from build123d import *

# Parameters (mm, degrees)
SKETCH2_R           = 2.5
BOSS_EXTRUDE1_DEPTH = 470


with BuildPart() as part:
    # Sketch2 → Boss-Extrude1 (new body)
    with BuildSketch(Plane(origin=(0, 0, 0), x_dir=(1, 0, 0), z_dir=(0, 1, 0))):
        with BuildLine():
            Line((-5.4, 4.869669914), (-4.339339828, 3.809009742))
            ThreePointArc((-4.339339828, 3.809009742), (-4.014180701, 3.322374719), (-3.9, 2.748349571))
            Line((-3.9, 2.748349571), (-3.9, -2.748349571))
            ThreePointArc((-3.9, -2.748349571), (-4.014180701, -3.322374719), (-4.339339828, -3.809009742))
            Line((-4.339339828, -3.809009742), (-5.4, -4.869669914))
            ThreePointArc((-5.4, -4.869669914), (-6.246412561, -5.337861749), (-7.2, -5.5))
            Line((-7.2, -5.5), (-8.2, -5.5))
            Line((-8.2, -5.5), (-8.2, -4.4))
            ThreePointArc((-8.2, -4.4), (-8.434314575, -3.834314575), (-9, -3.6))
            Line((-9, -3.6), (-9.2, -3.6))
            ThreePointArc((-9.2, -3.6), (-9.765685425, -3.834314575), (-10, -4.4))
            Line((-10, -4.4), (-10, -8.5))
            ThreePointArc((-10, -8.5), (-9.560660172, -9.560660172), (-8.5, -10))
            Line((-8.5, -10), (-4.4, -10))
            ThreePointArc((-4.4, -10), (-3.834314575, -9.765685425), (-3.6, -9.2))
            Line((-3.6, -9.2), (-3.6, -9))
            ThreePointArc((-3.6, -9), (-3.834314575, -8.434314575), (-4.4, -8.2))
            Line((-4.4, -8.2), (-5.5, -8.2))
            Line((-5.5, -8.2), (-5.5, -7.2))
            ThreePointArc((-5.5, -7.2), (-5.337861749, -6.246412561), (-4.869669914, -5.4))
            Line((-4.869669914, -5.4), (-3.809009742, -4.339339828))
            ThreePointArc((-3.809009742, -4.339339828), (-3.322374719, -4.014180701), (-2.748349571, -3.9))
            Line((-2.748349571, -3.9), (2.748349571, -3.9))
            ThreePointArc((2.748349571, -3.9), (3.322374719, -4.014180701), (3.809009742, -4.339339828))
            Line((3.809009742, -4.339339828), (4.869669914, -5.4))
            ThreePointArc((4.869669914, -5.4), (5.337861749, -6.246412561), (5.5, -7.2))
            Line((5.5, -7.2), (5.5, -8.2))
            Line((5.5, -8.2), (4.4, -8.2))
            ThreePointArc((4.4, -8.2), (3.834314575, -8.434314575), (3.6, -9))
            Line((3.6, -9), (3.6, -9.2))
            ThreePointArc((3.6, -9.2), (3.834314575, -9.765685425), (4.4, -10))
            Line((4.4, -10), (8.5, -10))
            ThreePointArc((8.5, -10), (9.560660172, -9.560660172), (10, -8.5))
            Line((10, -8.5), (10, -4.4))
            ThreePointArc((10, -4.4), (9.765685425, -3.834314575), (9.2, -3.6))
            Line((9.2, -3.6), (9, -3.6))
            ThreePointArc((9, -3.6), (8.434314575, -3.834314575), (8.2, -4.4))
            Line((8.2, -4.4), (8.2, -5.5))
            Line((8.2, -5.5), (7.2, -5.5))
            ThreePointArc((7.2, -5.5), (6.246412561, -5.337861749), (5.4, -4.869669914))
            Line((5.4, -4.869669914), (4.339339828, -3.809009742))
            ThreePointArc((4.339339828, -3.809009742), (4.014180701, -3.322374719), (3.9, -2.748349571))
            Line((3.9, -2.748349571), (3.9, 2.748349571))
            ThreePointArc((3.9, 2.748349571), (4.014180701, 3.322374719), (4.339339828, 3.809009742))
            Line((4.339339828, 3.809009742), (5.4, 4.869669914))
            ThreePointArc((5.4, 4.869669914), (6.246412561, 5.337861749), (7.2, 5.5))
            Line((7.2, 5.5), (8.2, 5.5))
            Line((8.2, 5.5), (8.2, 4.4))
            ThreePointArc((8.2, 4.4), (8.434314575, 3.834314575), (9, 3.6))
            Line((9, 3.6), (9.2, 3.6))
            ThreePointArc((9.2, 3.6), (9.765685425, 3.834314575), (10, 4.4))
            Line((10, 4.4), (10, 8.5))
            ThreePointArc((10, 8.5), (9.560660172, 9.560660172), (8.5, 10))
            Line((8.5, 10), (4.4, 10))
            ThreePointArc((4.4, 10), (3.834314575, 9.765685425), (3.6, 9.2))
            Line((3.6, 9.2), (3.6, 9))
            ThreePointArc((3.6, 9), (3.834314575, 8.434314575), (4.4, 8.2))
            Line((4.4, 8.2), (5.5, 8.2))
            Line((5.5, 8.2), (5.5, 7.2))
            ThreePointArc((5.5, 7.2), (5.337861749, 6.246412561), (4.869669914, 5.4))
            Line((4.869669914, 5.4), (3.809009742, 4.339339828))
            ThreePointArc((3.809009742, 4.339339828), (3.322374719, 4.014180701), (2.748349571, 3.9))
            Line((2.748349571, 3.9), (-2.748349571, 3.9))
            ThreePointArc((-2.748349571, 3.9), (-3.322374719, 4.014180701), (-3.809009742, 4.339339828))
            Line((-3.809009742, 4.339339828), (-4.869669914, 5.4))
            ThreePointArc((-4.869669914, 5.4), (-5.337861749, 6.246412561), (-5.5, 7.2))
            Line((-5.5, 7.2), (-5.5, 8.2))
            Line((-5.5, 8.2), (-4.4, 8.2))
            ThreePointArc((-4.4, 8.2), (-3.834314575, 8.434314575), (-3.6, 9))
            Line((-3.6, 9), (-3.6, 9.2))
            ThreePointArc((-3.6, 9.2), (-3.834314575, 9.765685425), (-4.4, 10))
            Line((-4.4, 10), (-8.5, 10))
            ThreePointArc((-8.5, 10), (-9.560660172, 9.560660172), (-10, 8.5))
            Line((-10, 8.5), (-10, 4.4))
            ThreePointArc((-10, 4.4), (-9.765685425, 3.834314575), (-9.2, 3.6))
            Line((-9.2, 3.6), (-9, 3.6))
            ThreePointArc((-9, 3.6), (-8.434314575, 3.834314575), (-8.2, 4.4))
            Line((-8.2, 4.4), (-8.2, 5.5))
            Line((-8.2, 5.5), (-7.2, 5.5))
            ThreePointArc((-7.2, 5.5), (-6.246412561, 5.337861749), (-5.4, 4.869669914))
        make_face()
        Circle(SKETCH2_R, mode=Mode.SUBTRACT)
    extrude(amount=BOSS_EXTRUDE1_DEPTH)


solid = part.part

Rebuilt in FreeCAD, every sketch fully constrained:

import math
import FreeCAD as App
import Part
import Sketcher

doc = App.newDocument("Part")
body = doc.addObject("PartDesign::Body", "Body")

# Sketch on XZ plane
sketch1 = body.newObject("Sketcher::SketchObject", "Sketch")
sketch1.AttachmentSupport = (doc.getObject("XZ_Plane"), [""])
sketch1.MapMode = "FlatFace"
sketch1.addGeometry([
    Part.LineSegment(App.Vector(-5.4, -4.87, 0), App.Vector(-4.34, -3.81, 0)),  # 0
    Part.ArcOfCircle(Part.Circle(App.Vector(-5.4, -2.75, 0), App.Vector(0, 0, 1), 1.5), math.radians(-45), math.radians(0)),  # 1
    Part.LineSegment(App.Vector(-3.9, -2.75, 0), App.Vector(-3.9, 2.75, 0)),  # 2
    Part.ArcOfCircle(Part.Circle(App.Vector(-5.4, 2.75, 0), App.Vector(0, 0, 1), 1.5), math.radians(0), math.radians(45)),  # 3
    Part.LineSegment(App.Vector(-4.34, 3.81, 0), App.Vector(-5.4, 4.87, 0)),  # 4
    Part.ArcOfCircle(Part.Circle(App.Vector(-7.2, 2.61, 0), App.Vector(0, 0, 1), 2.89), math.radians(51), math.radians(90)),  # 5
    Part.LineSegment(App.Vector(-7.2, 5.5, 0), App.Vector(-8.2, 5.5, 0)),  # 6
    Part.LineSegment(App.Vector(-8.2, 5.5, 0), App.Vector(-8.2, 4.4, 0)),  # 7
    Part.ArcOfCircle(Part.Circle(App.Vector(-9, 4.4, 0), App.Vector(0, 0, 1), 0.8), math.radians(-90), math.radians(0)),  # 8
    Part.LineSegment(App.Vector(-9, 3.6, 0), App.Vector(-9.2, 3.6, 0)),  # 9
    Part.ArcOfCircle(Part.Circle(App.Vector(-9.2, 4.4, 0), App.Vector(0, 0, 1), 0.8), math.radians(180), math.radians(270)),  # 10
    Part.LineSegment(App.Vector(-10, 4.4, 0), App.Vector(-10, 8.5, 0)),  # 11
    Part.ArcOfCircle(Part.Circle(App.Vector(-8.5, 8.5, 0), App.Vector(0, 0, 1), 1.5), math.radians(90), math.radians(180)),  # 12
    Part.LineSegment(App.Vector(-8.5, 10, 0), App.Vector(-4.4, 10, 0)),  # 13
    Part.ArcOfCircle(Part.Circle(App.Vector(-4.4, 9.2, 0), App.Vector(0, 0, 1), 0.8), math.radians(0), math.radians(90)),  # 14
    Part.LineSegment(App.Vector(-3.6, 9.2, 0), App.Vector(-3.6, 9, 0)),  # 15
    Part.ArcOfCircle(Part.Circle(App.Vector(-4.4, 9, 0), App.Vector(0, 0, 1), 0.8), math.radians(-90), math.radians(0)),  # 16
    Part.LineSegment(App.Vector(-4.4, 8.2, 0), App.Vector(-5.5, 8.2, 0)),  # 17
    Part.LineSegment(App.Vector(-5.5, 8.2, 0), App.Vector(-5.5, 7.2, 0)),  # 18
    Part.ArcOfCircle(Part.Circle(App.Vector(-2.61, 7.2, 0), App.Vector(0, 0, 1), 2.89), math.radians(180), math.radians(219)),  # 19
    Part.LineSegment(App.Vector(-4.87, 5.4, 0), App.Vector(-3.81, 4.34, 0)),  # 20
    Part.ArcOfCircle(Part.Circle(App.Vector(-2.75, 5.4, 0), App.Vector(0, 0, 1), 1.5), math.radians(-135), math.radians(-90)),  # 21
    Part.LineSegment(App.Vector(-2.75, 3.9, 0), App.Vector(2.75, 3.9, 0)),  # 22
    Part.ArcOfCircle(Part.Circle(App.Vector(2.75, 5.4, 0), App.Vector(0, 0, 1), 1.5), math.radians(-90), math.radians(-45)),  # 23
    Part.LineSegment(App.Vector(3.81, 4.34, 0), App.Vector(4.87, 5.4, 0)),  # 24
    Part.ArcOfCircle(Part.Circle(App.Vector(2.61, 7.2, 0), App.Vector(0, 0, 1), 2.89), math.radians(-39), math.radians(0)),  # 25
    Part.LineSegment(App.Vector(5.5, 7.2, 0), App.Vector(5.5, 8.2, 0)),  # 26
    Part.LineSegment(App.Vector(5.5, 8.2, 0), App.Vector(4.4, 8.2, 0)),  # 27
    Part.ArcOfCircle(Part.Circle(App.Vector(4.4, 9, 0), App.Vector(0, 0, 1), 0.8), math.radians(180), math.radians(270)),  # 28
    Part.LineSegment(App.Vector(3.6, 9, 0), App.Vector(3.6, 9.2, 0)),  # 29
    Part.ArcOfCircle(Part.Circle(App.Vector(4.4, 9.2, 0), App.Vector(0, 0, 1), 0.8), math.radians(90), math.radians(180)),  # 30
    Part.LineSegment(App.Vector(4.4, 10, 0), App.Vector(8.5, 10, 0)),  # 31
    Part.ArcOfCircle(Part.Circle(App.Vector(8.5, 8.5, 0), App.Vector(0, 0, 1), 1.5), math.radians(0), math.radians(90)),  # 32
    Part.LineSegment(App.Vector(10, 8.5, 0), App.Vector(10, 4.4, 0)),  # 33
    Part.ArcOfCircle(Part.Circle(App.Vector(9.2, 4.4, 0), App.Vector(0, 0, 1), 0.8), math.radians(-90), math.radians(0)),  # 34
    Part.LineSegment(App.Vector(9.2, 3.6, 0), App.Vector(9, 3.6, 0)),  # 35
    Part.ArcOfCircle(Part.Circle(App.Vector(9, 4.4, 0), App.Vector(0, 0, 1), 0.8), math.radians(180), math.radians(270)),  # 36
    Part.LineSegment(App.Vector(8.2, 4.4, 0), App.Vector(8.2, 5.5, 0)),  # 37
    Part.LineSegment(App.Vector(8.2, 5.5, 0), App.Vector(7.2, 5.5, 0)),  # 38
    Part.ArcOfCircle(Part.Circle(App.Vector(7.2, 2.61, 0), App.Vector(0, 0, 1), 2.89), math.radians(90), math.radians(129)),  # 39
    Part.LineSegment(App.Vector(5.4, 4.87, 0), App.Vector(4.34, 3.81, 0)),  # 40
    Part.ArcOfCircle(Part.Circle(App.Vector(5.4, 2.75, 0), App.Vector(0, 0, 1), 1.5), math.radians(135), math.radians(180)),  # 41
    Part.LineSegment(App.Vector(3.9, 2.75, 0), App.Vector(3.9, -2.75, 0)),  # 42
    Part.ArcOfCircle(Part.Circle(App.Vector(5.4, -2.75, 0), App.Vector(0, 0, 1), 1.5), math.radians(180), math.radians(225)),  # 43
    Part.LineSegment(App.Vector(4.34, -3.81, 0), App.Vector(5.4, -4.87, 0)),  # 44
    Part.ArcOfCircle(Part.Circle(App.Vector(7.2, -2.61, 0), App.Vector(0, 0, 1), 2.89), math.radians(-129), math.radians(-90)),  # 45
    Part.LineSegment(App.Vector(7.2, -5.5, 0), App.Vector(8.2, -5.5, 0)),  # 46
    Part.LineSegment(App.Vector(8.2, -5.5, 0), App.Vector(8.2, -4.4, 0)),  # 47
    Part.ArcOfCircle(Part.Circle(App.Vector(9, -4.4, 0), App.Vector(0, 0, 1), 0.8), math.radians(90), math.radians(180)),  # 48
    Part.LineSegment(App.Vector(9, -3.6, 0), App.Vector(9.2, -3.6, 0)),  # 49
    Part.ArcOfCircle(Part.Circle(App.Vector(9.2, -4.4, 0), App.Vector(0, 0, 1), 0.8), math.radians(0), math.radians(90)),  # 50
    Part.LineSegment(App.Vector(10, -4.4, 0), App.Vector(10, -8.5, 0)),  # 51
    Part.ArcOfCircle(Part.Circle(App.Vector(8.5, -8.5, 0), App.Vector(0, 0, 1), 1.5), math.radians(-90), math.radians(0)),  # 52
    Part.LineSegment(App.Vector(8.5, -10, 0), App.Vector(4.4, -10, 0)),  # 53
    Part.ArcOfCircle(Part.Circle(App.Vector(4.4, -9.2, 0), App.Vector(0, 0, 1), 0.8), math.radians(180), math.radians(270)),  # 54
    Part.LineSegment(App.Vector(3.6, -9.2, 0), App.Vector(3.6, -9, 0)),  # 55
    Part.ArcOfCircle(Part.Circle(App.Vector(4.4, -9, 0), App.Vector(0, 0, 1), 0.8), math.radians(90), math.radians(180)),  # 56
    Part.LineSegment(App.Vector(4.4, -8.2, 0), App.Vector(5.5, -8.2, 0)),  # 57
    Part.LineSegment(App.Vector(5.5, -8.2, 0), App.Vector(5.5, -7.2, 0)),  # 58
    Part.ArcOfCircle(Part.Circle(App.Vector(2.61, -7.2, 0), App.Vector(0, 0, 1), 2.89), math.radians(0), math.radians(39)),  # 59
    Part.LineSegment(App.Vector(4.87, -5.4, 0), App.Vector(3.81, -4.34, 0)),  # 60
    Part.ArcOfCircle(Part.Circle(App.Vector(2.75, -5.4, 0), App.Vector(0, 0, 1), 1.5), math.radians(45), math.radians(90)),  # 61
    Part.LineSegment(App.Vector(2.75, -3.9, 0), App.Vector(-2.75, -3.9, 0)),  # 62
    Part.ArcOfCircle(Part.Circle(App.Vector(-2.75, -5.4, 0), App.Vector(0, 0, 1), 1.5), math.radians(90), math.radians(135)),  # 63
    Part.LineSegment(App.Vector(-3.81, -4.34, 0), App.Vector(-4.87, -5.4, 0)),  # 64
    Part.ArcOfCircle(Part.Circle(App.Vector(-2.61, -7.2, 0), App.Vector(0, 0, 1), 2.89), math.radians(141), math.radians(180)),  # 65
    Part.LineSegment(App.Vector(-5.5, -7.2, 0), App.Vector(-5.5, -8.2, 0)),  # 66
    Part.LineSegment(App.Vector(-5.5, -8.2, 0), App.Vector(-4.4, -8.2, 0)),  # 67
    Part.ArcOfCircle(Part.Circle(App.Vector(-4.4, -9, 0), App.Vector(0, 0, 1), 0.8), math.radians(0), math.radians(90)),  # 68
    Part.LineSegment(App.Vector(-3.6, -9, 0), App.Vector(-3.6, -9.2, 0)),  # 69
    Part.ArcOfCircle(Part.Circle(App.Vector(-4.4, -9.2, 0), App.Vector(0, 0, 1), 0.8), math.radians(-90), math.radians(0)),  # 70
    Part.LineSegment(App.Vector(-4.4, -10, 0), App.Vector(-8.5, -10, 0)),  # 71
    Part.ArcOfCircle(Part.Circle(App.Vector(-8.5, -8.5, 0), App.Vector(0, 0, 1), 1.5), math.radians(180), math.radians(270)),  # 72
    Part.LineSegment(App.Vector(-10, -8.5, 0), App.Vector(-10, -4.4, 0)),  # 73
    Part.ArcOfCircle(Part.Circle(App.Vector(-9.2, -4.4, 0), App.Vector(0, 0, 1), 0.8), math.radians(90), math.radians(180)),  # 74
    Part.LineSegment(App.Vector(-9.2, -3.6, 0), App.Vector(-9, -3.6, 0)),  # 75
    Part.ArcOfCircle(Part.Circle(App.Vector(-9, -4.4, 0), App.Vector(0, 0, 1), 0.8), math.radians(0), math.radians(90)),  # 76
    Part.LineSegment(App.Vector(-8.2, -4.4, 0), App.Vector(-8.2, -5.5, 0)),  # 77
    Part.LineSegment(App.Vector(-8.2, -5.5, 0), App.Vector(-7.2, -5.5, 0)),  # 78
    Part.ArcOfCircle(Part.Circle(App.Vector(-7.2, -2.61, 0), App.Vector(0, 0, 1), 2.89), math.radians(-90), math.radians(-51)),  # 79
    Part.Circle(App.Vector(0, 0, 0), App.Vector(0, 0, 1), 2.5),  # 80
], False)
sketch1.addConstraint([
    Sketcher.Constraint("Tangent", 0, 2, 1, 1),
    Sketcher.Constraint("Tangent", 1, 2, 2, 1),
    Sketcher.Constraint("Tangent", 2, 2, 3, 1),
    Sketcher.Constraint("Tangent", 3, 2, 4, 1),
    Sketcher.Constraint("Coincident", 4, 2, 5, 1),
    Sketcher.Constraint("Tangent", 5, 2, 6, 1),
    Sketcher.Constraint("Coincident", 6, 2, 7, 1),
    Sketcher.Constraint("Tangent", 7, 2, 8, 2),
    Sketcher.Constraint("Tangent", 8, 1, 9, 1),
    Sketcher.Constraint("Tangent", 9, 2, 10, 2),
    Sketcher.Constraint("Tangent", 10, 1, 11, 1),
    Sketcher.Constraint("Tangent", 11, 2, 12, 2),
    Sketcher.Constraint("Tangent", 12, 1, 13, 1),
    Sketcher.Constraint("Tangent", 13, 2, 14, 2),
    Sketcher.Constraint("Tangent", 14, 1, 15, 1),
    Sketcher.Constraint("Tangent", 15, 2, 16, 2),
    Sketcher.Constraint("Tangent", 16, 1, 17, 1),
    Sketcher.Constraint("Coincident", 17, 2, 18, 1),
    Sketcher.Constraint("Tangent", 18, 2, 19, 1),
    Sketcher.Constraint("Coincident", 19, 2, 20, 1),
    Sketcher.Constraint("Tangent", 20, 2, 21, 1),
    Sketcher.Constraint("Tangent", 21, 2, 22, 1),
    Sketcher.Constraint("Tangent", 22, 2, 23, 1),
    Sketcher.Constraint("Tangent", 23, 2, 24, 1),
    Sketcher.Constraint("Coincident", 24, 2, 25, 1),
    Sketcher.Constraint("Tangent", 25, 2, 26, 1),
    Sketcher.Constraint("Coincident", 26, 2, 27, 1),
    Sketcher.Constraint("Tangent", 27, 2, 28, 2),
    Sketcher.Constraint("Tangent", 28, 1, 29, 1),
    Sketcher.Constraint("Tangent", 29, 2, 30, 2),
    Sketcher.Constraint("Tangent", 30, 1, 31, 1),
    Sketcher.Constraint("Tangent", 31, 2, 32, 2),
    Sketcher.Constraint("Tangent", 32, 1, 33, 1),
    Sketcher.Constraint("Tangent", 33, 2, 34, 2),
    Sketcher.Constraint("Tangent", 34, 1, 35, 1),
    Sketcher.Constraint("Tangent", 35, 2, 36, 2),
    Sketcher.Constraint("Tangent", 36, 1, 37, 1),
    Sketcher.Constraint("Coincident", 37, 2, 38, 1),
    Sketcher.Constraint("Tangent", 38, 2, 39, 1),
    Sketcher.Constraint("Coincident", 39, 2, 40, 1),
    Sketcher.Constraint("Tangent", 40, 2, 41, 1),
    Sketcher.Constraint("Tangent", 41, 2, 42, 1),
    Sketcher.Constraint("Tangent", 42, 2, 43, 1),
    Sketcher.Constraint("Tangent", 43, 2, 44, 1),
    Sketcher.Constraint("Coincident", 44, 2, 45, 1),
    Sketcher.Constraint("Tangent", 45, 2, 46, 1),
    Sketcher.Constraint("Coincident", 46, 2, 47, 1),
    Sketcher.Constraint("Tangent", 47, 2, 48, 2),
    Sketcher.Constraint("Tangent", 48, 1, 49, 1),
    Sketcher.Constraint("Tangent", 49, 2, 50, 2),
    Sketcher.Constraint("Tangent", 50, 1, 51, 1),
    Sketcher.Constraint("Tangent", 51, 2, 52, 2),
    Sketcher.Constraint("Tangent", 52, 1, 53, 1),
    Sketcher.Constraint("Tangent", 53, 2, 54, 2),
    Sketcher.Constraint("Tangent", 54, 1, 55, 1),
    Sketcher.Constraint("Tangent", 55, 2, 56, 2),
    Sketcher.Constraint("Tangent", 56, 1, 57, 1),
    Sketcher.Constraint("Coincident", 57, 2, 58, 1),
    Sketcher.Constraint("Tangent", 58, 2, 59, 1),
    Sketcher.Constraint("Coincident", 59, 2, 60, 1),
    Sketcher.Constraint("Tangent", 60, 2, 61, 1),
    Sketcher.Constraint("Tangent", 61, 2, 62, 1),
    Sketcher.Constraint("Tangent", 62, 2, 63, 1),
    Sketcher.Constraint("Tangent", 63, 2, 64, 1),
    Sketcher.Constraint("Coincident", 64, 2, 65, 1),
    Sketcher.Constraint("Tangent", 65, 2, 66, 1),
    Sketcher.Constraint("Coincident", 66, 2, 67, 1),
    Sketcher.Constraint("Tangent", 67, 2, 68, 2),
    Sketcher.Constraint("Tangent", 68, 1, 69, 1),
    Sketcher.Constraint("Tangent", 69, 2, 70, 2),
    Sketcher.Constraint("Tangent", 70, 1, 71, 1),
    Sketcher.Constraint("Tangent", 71, 2, 72, 2),
    Sketcher.Constraint("Tangent", 72, 1, 73, 1),
    Sketcher.Constraint("Tangent", 73, 2, 74, 2),
    Sketcher.Constraint("Tangent", 74, 1, 75, 1),
    Sketcher.Constraint("Tangent", 75, 2, 76, 2),
    Sketcher.Constraint("Tangent", 76, 1, 77, 1),
    Sketcher.Constraint("Coincident", 77, 2, 78, 1),
    Sketcher.Constraint("Tangent", 78, 2, 79, 1),
    Sketcher.Constraint("Coincident", 79, 2, 0, 1),
    Sketcher.Constraint("Vertical", 2),
    Sketcher.Constraint("Horizontal", 6),
    Sketcher.Constraint("Vertical", 7),
    Sketcher.Constraint("Horizontal", 9),
    Sketcher.Constraint("Vertical", 11),
    Sketcher.Constraint("Horizontal", 13),
    Sketcher.Constraint("Vertical", 15),
    Sketcher.Constraint("Horizontal", 17),
    Sketcher.Constraint("Vertical", 18),
    Sketcher.Constraint("Horizontal", 22),
    Sketcher.Constraint("Vertical", 26),
    Sketcher.Constraint("Horizontal", 27),
    Sketcher.Constraint("Vertical", 29),
    Sketcher.Constraint("Horizontal", 31),
    Sketcher.Constraint("Vertical", 33),
    Sketcher.Constraint("Horizontal", 35),
    Sketcher.Constraint("Vertical", 37),
    Sketcher.Constraint("Horizontal", 38),
    Sketcher.Constraint("Vertical", 42),
    Sketcher.Constraint("Horizontal", 46),
    Sketcher.Constraint("Vertical", 47),
    Sketcher.Constraint("Horizontal", 49),
    Sketcher.Constraint("Vertical", 51),
    Sketcher.Constraint("Horizontal", 53),
    Sketcher.Constraint("Vertical", 55),
    Sketcher.Constraint("Horizontal", 57),
    Sketcher.Constraint("Vertical", 58),
    Sketcher.Constraint("Horizontal", 62),
    Sketcher.Constraint("Vertical", 66),
    Sketcher.Constraint("Horizontal", 67),
    Sketcher.Constraint("Vertical", 69),
    Sketcher.Constraint("Horizontal", 71),
    Sketcher.Constraint("Vertical", 73),
    Sketcher.Constraint("Horizontal", 75),
    Sketcher.Constraint("Vertical", 77),
    Sketcher.Constraint("Horizontal", 78),
    Sketcher.Constraint("Coincident", 80, 3, -1, 1),
    Sketcher.Constraint("Equal", 1, 3),
    Sketcher.Constraint("Equal", 8, 10),
    Sketcher.Constraint("Equal", 3, 12),
    Sketcher.Constraint("Equal", 10, 14),
    Sketcher.Constraint("Equal", 14, 16),
    Sketcher.Constraint("Equal", 5, 19),
    Sketcher.Constraint("Equal", 12, 21),
    Sketcher.Constraint("Equal", 21, 23),
    Sketcher.Constraint("Equal", 19, 25),
    Sketcher.Constraint("Equal", 16, 28),
    Sketcher.Constraint("Equal", 28, 30),
    Sketcher.Constraint("Equal", 23, 32),
    Sketcher.Constraint("Equal", 30, 34),
    Sketcher.Constraint("Equal", 34, 36),
    Sketcher.Constraint("Equal", 25, 39),
    Sketcher.Constraint("Equal", 32, 41),
    Sketcher.Constraint("Equal", 41, 43),
    Sketcher.Constraint("Equal", 39, 45),
    Sketcher.Constraint("Equal", 36, 48),
    Sketcher.Constraint("Equal", 48, 50),
    Sketcher.Constraint("Equal", 43, 52),
    Sketcher.Constraint("Equal", 50, 54),
    Sketcher.Constraint("Equal", 54, 56),
    Sketcher.Constraint("Equal", 45, 59),
    Sketcher.Constraint("Equal", 52, 61),
    Sketcher.Constraint("Equal", 61, 63),
    Sketcher.Constraint("Equal", 59, 65),
    Sketcher.Constraint("Equal", 56, 68),
    Sketcher.Constraint("Equal", 68, 70),
    Sketcher.Constraint("Equal", 63, 72),
    Sketcher.Constraint("Equal", 70, 74),
    Sketcher.Constraint("Equal", 74, 76),
    Sketcher.Constraint("Equal", 65, 79),
    Sketcher.Constraint("Symmetric", 1, 3, 41, 3, -1, 1),
    Sketcher.Constraint("Symmetric", 5, 3, 45, 3, -1, 1),
    Sketcher.Constraint("Symmetric", 8, 3, 48, 3, -1, 1),
    Sketcher.Constraint("Symmetric", 12, 3, 52, 3, -1, 1),
    Sketcher.Constraint("Symmetric", 16, 3, 56, 3, -1, 1),
    Sketcher.Constraint("Symmetric", 19, 3, 59, 3, -1, 1),
    Sketcher.Constraint("Symmetric", 21, 3, 61, 3, -1, 1),
    Sketcher.Constraint("Symmetric", 25, 3, 65, 3, -1, 1),
    Sketcher.Constraint("Symmetric", 28, 3, 68, 3, -1, 1),
    Sketcher.Constraint("Symmetric", 32, 3, 72, 3, -1, 1),
    Sketcher.Constraint("Symmetric", 36, 3, 76, 3, -1, 1),
    Sketcher.Constraint("Symmetric", 39, 3, 79, 3, -1, 1),
    Sketcher.Constraint("Symmetric", 3, 2, 43, 2, -1, 1),
    Sketcher.Constraint("Symmetric", 23, 2, 63, 2, -1, 1),
    Sketcher.Constraint("Symmetric", 19, 3, 25, 3, -2),
    Sketcher.Constraint("Symmetric", 16, 3, 28, 3, -2),
    Sketcher.Constraint("Symmetric", 12, 3, 32, 3, -2),
    Sketcher.Constraint("Symmetric", 8, 3, 36, 3, -2),
    Sketcher.Constraint("Symmetric", 5, 3, 39, 3, -2),
    Sketcher.Constraint("Symmetric", 20, 2, 23, 2, -2),
    Sketcher.Constraint("Symmetric", 3, 2, 40, 2, -2),
    Sketcher.Constraint("Perpendicular", 0, 4),
    Sketcher.Constraint("Parallel", 4, 20),
    Sketcher.Constraint("Perpendicular", 20, 24),
    Sketcher.Constraint("Parallel", 44, 60),
    Sketcher.Constraint("Horizontal", 23, 3, 19, 2),
    Sketcher.Constraint("Vertical", 3, 3, 4, 2),
    Sketcher.Constraint("Equal", 62, 2),
    Sketcher.Constraint("Equal", 67, 7),
    Sketcher.Constraint("Equal", 71, 11),
    Sketcher.Constraint("Equal", 75, 15),
    Sketcher.Constraint("Equal", 78, 18),
    Sketcher.Constraint("Diameter", 80, 5.0),
    Sketcher.Constraint("Radius", 1, 1.5),
    Sketcher.Constraint("Radius", 8, 0.8),
    Sketcher.Constraint("DistanceX", 6, 2, 6, 1, 1.0),
    Sketcher.Constraint("DistanceX", 9, 2, 9, 1, 0.2),
    Sketcher.Constraint("DistanceX", 13, 1, 13, 2, 4.1),
    Sketcher.Constraint("DistanceX", 17, 2, 17, 1, 1.1),
    Sketcher.Constraint("DistanceX", 8, 3, -1, 1, 9.0),
    Sketcher.Constraint("DistanceY", -1, 1, 16, 3, 9.0),
    Sketcher.Constraint("DistanceX", 1, 3, -1, 1, 5.4),
    Sketcher.Constraint("DistanceX", 22, 1, 22, 2, 5.496699),
])
pad1 = body.newObject("PartDesign::Pad", "Pad")
pad1.Profile = sketch1
pad1.Length = 470
pad1.Reversed = True

doc.recompute()
